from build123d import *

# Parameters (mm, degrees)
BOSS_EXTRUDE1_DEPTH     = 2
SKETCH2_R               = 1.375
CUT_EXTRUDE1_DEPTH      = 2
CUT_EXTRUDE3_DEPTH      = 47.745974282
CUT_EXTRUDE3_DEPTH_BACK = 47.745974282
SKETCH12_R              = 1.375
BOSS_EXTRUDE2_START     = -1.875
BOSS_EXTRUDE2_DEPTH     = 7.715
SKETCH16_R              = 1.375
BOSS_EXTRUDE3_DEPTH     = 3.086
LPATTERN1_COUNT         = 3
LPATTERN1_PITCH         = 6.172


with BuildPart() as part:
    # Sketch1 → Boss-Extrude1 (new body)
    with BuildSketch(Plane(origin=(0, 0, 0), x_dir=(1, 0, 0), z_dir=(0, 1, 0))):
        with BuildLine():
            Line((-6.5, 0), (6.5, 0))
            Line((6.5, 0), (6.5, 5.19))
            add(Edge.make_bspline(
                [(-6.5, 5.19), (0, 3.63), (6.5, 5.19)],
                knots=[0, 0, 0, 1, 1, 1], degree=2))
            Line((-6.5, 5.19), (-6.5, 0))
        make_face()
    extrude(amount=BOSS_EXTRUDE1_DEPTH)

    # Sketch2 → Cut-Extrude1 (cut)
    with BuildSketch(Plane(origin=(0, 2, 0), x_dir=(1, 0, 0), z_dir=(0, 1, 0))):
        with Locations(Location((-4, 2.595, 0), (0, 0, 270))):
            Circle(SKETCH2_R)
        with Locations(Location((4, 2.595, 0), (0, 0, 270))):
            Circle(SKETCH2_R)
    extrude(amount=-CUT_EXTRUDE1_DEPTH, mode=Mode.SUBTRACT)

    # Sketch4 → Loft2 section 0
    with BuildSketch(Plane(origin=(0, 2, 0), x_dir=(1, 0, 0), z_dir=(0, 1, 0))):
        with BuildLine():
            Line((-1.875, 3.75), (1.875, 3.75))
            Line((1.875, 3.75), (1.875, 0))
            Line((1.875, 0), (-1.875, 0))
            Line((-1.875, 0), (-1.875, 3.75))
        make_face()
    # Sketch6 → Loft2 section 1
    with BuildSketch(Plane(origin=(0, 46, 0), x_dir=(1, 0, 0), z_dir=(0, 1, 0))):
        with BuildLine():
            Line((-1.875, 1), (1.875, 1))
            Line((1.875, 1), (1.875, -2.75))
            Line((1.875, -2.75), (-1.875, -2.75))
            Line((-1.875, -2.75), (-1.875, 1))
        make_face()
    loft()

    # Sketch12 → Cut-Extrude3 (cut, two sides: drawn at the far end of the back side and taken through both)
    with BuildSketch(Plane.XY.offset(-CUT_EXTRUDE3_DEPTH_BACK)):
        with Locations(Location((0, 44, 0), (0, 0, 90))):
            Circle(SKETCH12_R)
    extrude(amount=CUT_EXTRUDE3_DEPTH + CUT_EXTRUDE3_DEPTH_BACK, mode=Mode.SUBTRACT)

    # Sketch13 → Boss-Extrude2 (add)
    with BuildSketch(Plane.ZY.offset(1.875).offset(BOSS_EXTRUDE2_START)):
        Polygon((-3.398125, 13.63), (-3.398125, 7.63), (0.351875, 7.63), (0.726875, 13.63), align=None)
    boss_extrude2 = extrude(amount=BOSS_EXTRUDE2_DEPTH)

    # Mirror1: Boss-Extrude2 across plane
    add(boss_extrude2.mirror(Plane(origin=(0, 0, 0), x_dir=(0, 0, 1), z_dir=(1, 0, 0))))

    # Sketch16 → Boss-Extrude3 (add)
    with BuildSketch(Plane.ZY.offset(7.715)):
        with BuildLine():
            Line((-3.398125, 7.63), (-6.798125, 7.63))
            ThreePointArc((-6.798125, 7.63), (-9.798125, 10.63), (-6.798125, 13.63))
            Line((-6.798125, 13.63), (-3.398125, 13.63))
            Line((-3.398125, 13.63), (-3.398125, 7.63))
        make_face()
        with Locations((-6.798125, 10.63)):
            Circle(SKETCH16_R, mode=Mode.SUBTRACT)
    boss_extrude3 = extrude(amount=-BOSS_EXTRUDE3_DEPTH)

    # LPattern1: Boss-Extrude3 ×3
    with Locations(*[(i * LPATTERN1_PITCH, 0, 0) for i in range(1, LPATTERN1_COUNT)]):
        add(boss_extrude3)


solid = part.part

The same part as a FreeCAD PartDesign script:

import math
import FreeCAD as App
import Part
import Sketcher
from FreeCAD import Vector

doc = App.newDocument("Part")
body = doc.addObject("PartDesign::Body", "Body")

# Sketch on XZ plane
sketch1 = doc.addObject("Sketcher::SketchObject", "Sketch")
body.addObject(sketch1)
sketch1.AttachmentSupport = (doc.XZ_Plane, [""])
sketch1.MapMode = "FlatFace"
sketch1.addGeometry([
    Part.LineSegment(Vector(-6.5, 0, 0), Vector(6.5, 0, 0)),
    Part.LineSegment(Vector(6.5, 0, 0), Vector(6.5, -5.19, 0)),
    Part.BSplineCurve([Vector(-6.5, -5.19, 0), Vector(0, -3.63, 0), Vector(6.5, -5.19, 0)], [3, 3], [0, 1], False, 2, [1, 1, 1], False),
    Part.LineSegment(Vector(-6.5, -5.19, 0), Vector(-6.5, 0, 0)),
], False)
sketch1.addConstraint([
    Sketcher.Constraint("Block", 2),
    Sketcher.Constraint("Coincident", 0, 2, 1, 1),
    Sketcher.Constraint("Coincident", 1, 2, 2, 2),
    Sketcher.Constraint("Coincident", 2, 1, 3, 1),
    Sketcher.Constraint("Coincident", 3, 2, 0, 1),
    Sketcher.Constraint("Horizontal", 0),
    Sketcher.Constraint("Vertical", 1),
    Sketcher.Constraint("Vertical", 3),
    Sketcher.Constraint("PointOnObject", 0, 2, -1),
])
pad1 = doc.addObject("PartDesign::Pad", "Pad")
body.addObject(pad1)
pad1.Profile = sketch1
pad1.Length = 2
pad1.Reversed = True

# Sketch on XZ plane
sketch2 = doc.addObject("Sketcher::SketchObject", "Sketch001")
body.addObject(sketch2)
sketch2.AttachmentSupport = (doc.XZ_Plane, [""])
sketch2.MapMode = "FlatFace"
sketch2.AttachmentOffset = App.Placement(Vector(0, 0, -2), App.Rotation())
sketch2.addGeometry([
    Part.Circle(Vector(-4, -2.595, 0), Vector(0, 0, 1), 1.375),
    Part.Circle(Vector(4, -2.595, 0), Vector(0, 0, 1), 1.375),
], False)
sketch2.addConstraint([
    Sketcher.Constraint("Equal", 0, 1),
    Sketcher.Constraint("Symmetric", 0, 3, 1, 3, -2),
    Sketcher.Constraint("Diameter", 0, 2.75),
    Sketcher.Constraint("DistanceX", 0, 3, -1, 1, 4.0),
    Sketcher.Constraint("DistanceY", 0, 3, -1, 1, 2.595),
])
pocket1 = doc.addObject("PartDesign::Pocket", "Pocket")
body.addObject(pocket1)
pocket1.Profile = sketch2
pocket1.Length = 2
pocket1.Reversed = True

# Sketch on XZ plane
sketch3 = doc.addObject("Sketcher::SketchObject", "Sketch002")
body.addObject(sketch3)
sketch3.AttachmentSupport = (doc.XZ_Plane, [""])
sketch3.MapMode = "FlatFace"
sketch3.AttachmentOffset = App.Placement(Vector(0, 0, -2), App.Rotation())
sketch3.addGeometry([
    Part.LineSegment(Vector(1.875, -3.75, 0), Vector(-1.875, -3.75, 0)),
    Part.LineSegment(Vector(-1.875, -3.75, 0), Vector(-1.875, 0, 0)),
    Part.LineSegment(Vector(-1.875, 0, 0), Vector(1.875, 0, 0)),
    Part.LineSegment(Vector(1.875, 0, 0), Vector(1.875, -3.75, 0)),
], False)
sketch3.addConstraint([
    Sketcher.Constraint("Coincident", 0, 2, 1, 1),
    Sketcher.Constraint("Coincident", 1, 2, 2, 1),
    Sketcher.Constraint("Coincident", 2, 2, 3, 1),
    Sketcher.Constraint("Coincident", 3, 2, 0, 1),
    Sketcher.Constraint("Horizontal", 0),
    Sketcher.Constraint("Vertical", 1),
    Sketcher.Constraint("Horizontal", 2),
    Sketcher.Constraint("Vertical", 3),
    Sketcher.Constraint("Symmetric", 1, 2, 2, 2, -1, 1),
    Sketcher.Constraint("Equal", 2, 1),
    Sketcher.Constraint("DistanceX", 0, 2, 0, 1, 3.75),
])

# Sketch on XZ plane
sketch4 = doc.addObject("Sketcher::SketchObject", "Sketch003")
body.addObject(sketch4)
sketch4.AttachmentSupport = (doc.XZ_Plane, [""])
sketch4.MapMode = "FlatFace"
sketch4.AttachmentOffset = App.Placement(Vector(0, 0, -46), App.Rotation())
sketch4.addGeometry([
    Part.LineSegment(Vector(1.875, -1, 0), Vector(-1.875, -1, 0)),
    Part.LineSegment(Vector(-1.875, -1, 0), Vector(-1.875, 2.75, 0)),
    Part.LineSegment(Vector(-1.875, 2.75, 0), Vector(1.875, 2.75, 0)),
    Part.LineSegment(Vector(1.875, 2.75, 0), Vector(1.875, -1, 0)),
], False)
sketch4.addConstraint([
    Sketcher.Constraint("Coincident", 0, 2, 1, 1),
    Sketcher.Constraint("Coincident", 1, 2, 2, 1),
    Sketcher.Constraint("Coincident", 2, 2, 3, 1),
    Sketcher.Constraint("Coincident", 3, 2, 0, 1),
    Sketcher.Constraint("Horizontal", 0),
    Sketcher.Constraint("Vertical", 1),
    Sketcher.Constraint("Horizontal", 2),
    Sketcher.Constraint("Vertical", 3),
    Sketcher.Constraint("Equal", 2, 1),
    Sketcher.Constraint("DistanceY", 0, 2, -1, 1, 1.0),
    Sketcher.Constraint("DistanceX", 0, 2, 0, 1, 3.75),
    Sketcher.Constraint("DistanceX", 0, 2, -1, 1, 1.875),
])

additiveloft = doc.addObject("PartDesign::AdditiveLoft", "AdditiveLoft")
body.addObject(additiveloft)
additiveloft.Profile = sketch3
additiveloft.Sections = [sketch4]

# Sketch on XY plane
sketch5 = doc.addObject("Sketcher::SketchObject", "Sketch004")
body.addObject(sketch5)
sketch5.AttachmentSupport = (doc.XY_Plane, [""])
sketch5.MapMode = "FlatFace"
sketch5.addGeometry(Part.Circle(Vector(0, 44, 0), Vector(0, 0, 1), 1.375), False)
sketch5.addConstraint([
    Sketcher.Constraint("PointOnObject", 0, 3, -2),
    Sketcher.Constraint("Diameter", 0, 2.75),
    Sketcher.Constraint("DistanceY", -1, 1, 0, 3, 44.0),
])
pocket2 = doc.addObject("PartDesign::Pocket", "Pocket001")
body.addObject(pocket2)
pocket2.Profile = sketch5
pocket2.Type = "ThroughAll"
pocket2.Midplane = True

# Sketch on YZ plane
sketch6 = doc.addObject("Sketcher::SketchObject", "Sketch005")
body.addObject(sketch6)
sketch6.AttachmentSupport = (doc.YZ_Plane, [""])
sketch6.MapMode = "FlatFace"
sketch6.addGeometry([
    Part.LineSegment(Vector(13.63, -3.398125, 0), Vector(7.63, -3.398125, 0)),
    Part.LineSegment(Vector(7.63, -3.398125, 0), Vector(7.63, 0.351875, 0)),
    Part.LineSegment(Vector(7.63, 0.351875, 0), Vector(13.63, 0.726875, 0)),
    Part.LineSegment(Vector(13.63, 0.726875, 0), Vector(13.63, -3.398125, 0)),
], False)
sketch6.addConstraint([
    Sketcher.Constraint("Coincident", 0, 2, 1, 1),
    Sketcher.Constraint("Coincident", 1, 2, 2, 1),
    Sketcher.Constraint("Coincident", 2, 2, 3, 1),
    Sketcher.Constraint("Coincident", 3, 2, 0, 1),
    Sketcher.Constraint("Horizontal", 0),
    Sketcher.Constraint("Vertical", 1),
    Sketcher.Constraint("Vertical", 3),
    Sketcher.Constraint("DistanceX", 0, 2, 0, 1, 6.0),
    Sketcher.Constraint("DistanceY", 1, 1, 1, 2, 3.75),
    Sketcher.Constraint("DistanceY", 3, 2, 3, 1, 4.125),
    Sketcher.Constraint("DistanceX", -1, 1, 0, 2, 7.63),
    Sketcher.Constraint("DistanceY", 0, 2, -1, 1, 3.398125),
])
pad2 = doc.addObject("PartDesign::Pad", "Pad001")
body.addObject(pad2)
pad2.Profile = sketch6
pad2.Length = 7.715
pad2.Reversed = True
doc.recompute()

mirrored = doc.addObject("PartDesign::Mirrored", "Mirrored")
body.addObject(mirrored)
mirrored.Originals = [pad2]
mirrored.MirrorPlane = (doc.YZ_Plane, [""])
body.Tip = mirrored

# Sketch on YZ plane
sketch7 = doc.addObject("Sketcher::SketchObject", "Sketch006")
body.addObject(sketch7)
sketch7.AttachmentSupport = (doc.YZ_Plane, [""])
sketch7.MapMode = "FlatFace"
sketch7.AttachmentOffset = App.Placement(Vector(0, 0, -7.715), App.Rotation())
sketch7.addGeometry([
    Part.LineSegment(Vector(7.63, -6.798125, 0), Vector(7.63, -3.398125, 0)),  # 0
    Part.LineSegment(Vector(7.63, -3.398125, 0), Vector(13.63, -3.398125, 0)),  # 1
    Part.LineSegment(Vector(13.63, -3.398125, 0), Vector(13.63, -6.798125, 0)),  # 2
    Part.ArcOfCircle(Part.Circle(Vector(10.63, -6.798125, 0), Vector(0, 0, 1), 3), math.radians(180), math.radians(360)),  # 3
    Part.Circle(Vector(10.63, -6.798125, 0), Vector(0, 0, 1), 1.375),  # 4
], False)
sketch7.addConstraint([
    Sketcher.Constraint("Coincident", 0, 2, 1, 1),
    Sketcher.Constraint("Coincident", 1, 2, 2, 1),
    Sketcher.Constraint("Tangent", 2, 2, 3, 2),
    Sketcher.Constraint("Tangent", 3, 1, 0, 1),
    Sketcher.Constraint("Vertical", 0),
    Sketcher.Constraint("Horizontal", 1),
    Sketcher.Constraint("Vertical", 2),
    Sketcher.Constraint("Coincident", 4, 3, 3, 3),
    Sketcher.Constraint("Radius", 3, 3.0),
    Sketcher.Constraint("Diameter", 4, 2.75),
    Sketcher.Constraint("DistanceY", 0, 1, 0, 2, 3.4),
    Sketcher.Constraint("DistanceX", -1, 1, 3, 3, 10.63),
    Sketcher.Constraint("DistanceY", 3, 3, -1, 1, 6.798125),
])
pad3 = doc.addObject("PartDesign::Pad", "Pad002")
body.addObject(pad3)
pad3.Profile = sketch7
pad3.Length = 3.086
doc.recompute()

linearpattern = doc.addObject("PartDesign::LinearPattern", "LinearPattern")
body.addObject(linearpattern)
linearpattern.Originals = [pad3]
linearpattern.Direction = (doc.X_Axis, [""])
linearpattern.Mode = "offset"
linearpattern.Offset = 6.172
linearpattern.Occurrences = 3
body.Tip = linearpattern

doc.recompute()
